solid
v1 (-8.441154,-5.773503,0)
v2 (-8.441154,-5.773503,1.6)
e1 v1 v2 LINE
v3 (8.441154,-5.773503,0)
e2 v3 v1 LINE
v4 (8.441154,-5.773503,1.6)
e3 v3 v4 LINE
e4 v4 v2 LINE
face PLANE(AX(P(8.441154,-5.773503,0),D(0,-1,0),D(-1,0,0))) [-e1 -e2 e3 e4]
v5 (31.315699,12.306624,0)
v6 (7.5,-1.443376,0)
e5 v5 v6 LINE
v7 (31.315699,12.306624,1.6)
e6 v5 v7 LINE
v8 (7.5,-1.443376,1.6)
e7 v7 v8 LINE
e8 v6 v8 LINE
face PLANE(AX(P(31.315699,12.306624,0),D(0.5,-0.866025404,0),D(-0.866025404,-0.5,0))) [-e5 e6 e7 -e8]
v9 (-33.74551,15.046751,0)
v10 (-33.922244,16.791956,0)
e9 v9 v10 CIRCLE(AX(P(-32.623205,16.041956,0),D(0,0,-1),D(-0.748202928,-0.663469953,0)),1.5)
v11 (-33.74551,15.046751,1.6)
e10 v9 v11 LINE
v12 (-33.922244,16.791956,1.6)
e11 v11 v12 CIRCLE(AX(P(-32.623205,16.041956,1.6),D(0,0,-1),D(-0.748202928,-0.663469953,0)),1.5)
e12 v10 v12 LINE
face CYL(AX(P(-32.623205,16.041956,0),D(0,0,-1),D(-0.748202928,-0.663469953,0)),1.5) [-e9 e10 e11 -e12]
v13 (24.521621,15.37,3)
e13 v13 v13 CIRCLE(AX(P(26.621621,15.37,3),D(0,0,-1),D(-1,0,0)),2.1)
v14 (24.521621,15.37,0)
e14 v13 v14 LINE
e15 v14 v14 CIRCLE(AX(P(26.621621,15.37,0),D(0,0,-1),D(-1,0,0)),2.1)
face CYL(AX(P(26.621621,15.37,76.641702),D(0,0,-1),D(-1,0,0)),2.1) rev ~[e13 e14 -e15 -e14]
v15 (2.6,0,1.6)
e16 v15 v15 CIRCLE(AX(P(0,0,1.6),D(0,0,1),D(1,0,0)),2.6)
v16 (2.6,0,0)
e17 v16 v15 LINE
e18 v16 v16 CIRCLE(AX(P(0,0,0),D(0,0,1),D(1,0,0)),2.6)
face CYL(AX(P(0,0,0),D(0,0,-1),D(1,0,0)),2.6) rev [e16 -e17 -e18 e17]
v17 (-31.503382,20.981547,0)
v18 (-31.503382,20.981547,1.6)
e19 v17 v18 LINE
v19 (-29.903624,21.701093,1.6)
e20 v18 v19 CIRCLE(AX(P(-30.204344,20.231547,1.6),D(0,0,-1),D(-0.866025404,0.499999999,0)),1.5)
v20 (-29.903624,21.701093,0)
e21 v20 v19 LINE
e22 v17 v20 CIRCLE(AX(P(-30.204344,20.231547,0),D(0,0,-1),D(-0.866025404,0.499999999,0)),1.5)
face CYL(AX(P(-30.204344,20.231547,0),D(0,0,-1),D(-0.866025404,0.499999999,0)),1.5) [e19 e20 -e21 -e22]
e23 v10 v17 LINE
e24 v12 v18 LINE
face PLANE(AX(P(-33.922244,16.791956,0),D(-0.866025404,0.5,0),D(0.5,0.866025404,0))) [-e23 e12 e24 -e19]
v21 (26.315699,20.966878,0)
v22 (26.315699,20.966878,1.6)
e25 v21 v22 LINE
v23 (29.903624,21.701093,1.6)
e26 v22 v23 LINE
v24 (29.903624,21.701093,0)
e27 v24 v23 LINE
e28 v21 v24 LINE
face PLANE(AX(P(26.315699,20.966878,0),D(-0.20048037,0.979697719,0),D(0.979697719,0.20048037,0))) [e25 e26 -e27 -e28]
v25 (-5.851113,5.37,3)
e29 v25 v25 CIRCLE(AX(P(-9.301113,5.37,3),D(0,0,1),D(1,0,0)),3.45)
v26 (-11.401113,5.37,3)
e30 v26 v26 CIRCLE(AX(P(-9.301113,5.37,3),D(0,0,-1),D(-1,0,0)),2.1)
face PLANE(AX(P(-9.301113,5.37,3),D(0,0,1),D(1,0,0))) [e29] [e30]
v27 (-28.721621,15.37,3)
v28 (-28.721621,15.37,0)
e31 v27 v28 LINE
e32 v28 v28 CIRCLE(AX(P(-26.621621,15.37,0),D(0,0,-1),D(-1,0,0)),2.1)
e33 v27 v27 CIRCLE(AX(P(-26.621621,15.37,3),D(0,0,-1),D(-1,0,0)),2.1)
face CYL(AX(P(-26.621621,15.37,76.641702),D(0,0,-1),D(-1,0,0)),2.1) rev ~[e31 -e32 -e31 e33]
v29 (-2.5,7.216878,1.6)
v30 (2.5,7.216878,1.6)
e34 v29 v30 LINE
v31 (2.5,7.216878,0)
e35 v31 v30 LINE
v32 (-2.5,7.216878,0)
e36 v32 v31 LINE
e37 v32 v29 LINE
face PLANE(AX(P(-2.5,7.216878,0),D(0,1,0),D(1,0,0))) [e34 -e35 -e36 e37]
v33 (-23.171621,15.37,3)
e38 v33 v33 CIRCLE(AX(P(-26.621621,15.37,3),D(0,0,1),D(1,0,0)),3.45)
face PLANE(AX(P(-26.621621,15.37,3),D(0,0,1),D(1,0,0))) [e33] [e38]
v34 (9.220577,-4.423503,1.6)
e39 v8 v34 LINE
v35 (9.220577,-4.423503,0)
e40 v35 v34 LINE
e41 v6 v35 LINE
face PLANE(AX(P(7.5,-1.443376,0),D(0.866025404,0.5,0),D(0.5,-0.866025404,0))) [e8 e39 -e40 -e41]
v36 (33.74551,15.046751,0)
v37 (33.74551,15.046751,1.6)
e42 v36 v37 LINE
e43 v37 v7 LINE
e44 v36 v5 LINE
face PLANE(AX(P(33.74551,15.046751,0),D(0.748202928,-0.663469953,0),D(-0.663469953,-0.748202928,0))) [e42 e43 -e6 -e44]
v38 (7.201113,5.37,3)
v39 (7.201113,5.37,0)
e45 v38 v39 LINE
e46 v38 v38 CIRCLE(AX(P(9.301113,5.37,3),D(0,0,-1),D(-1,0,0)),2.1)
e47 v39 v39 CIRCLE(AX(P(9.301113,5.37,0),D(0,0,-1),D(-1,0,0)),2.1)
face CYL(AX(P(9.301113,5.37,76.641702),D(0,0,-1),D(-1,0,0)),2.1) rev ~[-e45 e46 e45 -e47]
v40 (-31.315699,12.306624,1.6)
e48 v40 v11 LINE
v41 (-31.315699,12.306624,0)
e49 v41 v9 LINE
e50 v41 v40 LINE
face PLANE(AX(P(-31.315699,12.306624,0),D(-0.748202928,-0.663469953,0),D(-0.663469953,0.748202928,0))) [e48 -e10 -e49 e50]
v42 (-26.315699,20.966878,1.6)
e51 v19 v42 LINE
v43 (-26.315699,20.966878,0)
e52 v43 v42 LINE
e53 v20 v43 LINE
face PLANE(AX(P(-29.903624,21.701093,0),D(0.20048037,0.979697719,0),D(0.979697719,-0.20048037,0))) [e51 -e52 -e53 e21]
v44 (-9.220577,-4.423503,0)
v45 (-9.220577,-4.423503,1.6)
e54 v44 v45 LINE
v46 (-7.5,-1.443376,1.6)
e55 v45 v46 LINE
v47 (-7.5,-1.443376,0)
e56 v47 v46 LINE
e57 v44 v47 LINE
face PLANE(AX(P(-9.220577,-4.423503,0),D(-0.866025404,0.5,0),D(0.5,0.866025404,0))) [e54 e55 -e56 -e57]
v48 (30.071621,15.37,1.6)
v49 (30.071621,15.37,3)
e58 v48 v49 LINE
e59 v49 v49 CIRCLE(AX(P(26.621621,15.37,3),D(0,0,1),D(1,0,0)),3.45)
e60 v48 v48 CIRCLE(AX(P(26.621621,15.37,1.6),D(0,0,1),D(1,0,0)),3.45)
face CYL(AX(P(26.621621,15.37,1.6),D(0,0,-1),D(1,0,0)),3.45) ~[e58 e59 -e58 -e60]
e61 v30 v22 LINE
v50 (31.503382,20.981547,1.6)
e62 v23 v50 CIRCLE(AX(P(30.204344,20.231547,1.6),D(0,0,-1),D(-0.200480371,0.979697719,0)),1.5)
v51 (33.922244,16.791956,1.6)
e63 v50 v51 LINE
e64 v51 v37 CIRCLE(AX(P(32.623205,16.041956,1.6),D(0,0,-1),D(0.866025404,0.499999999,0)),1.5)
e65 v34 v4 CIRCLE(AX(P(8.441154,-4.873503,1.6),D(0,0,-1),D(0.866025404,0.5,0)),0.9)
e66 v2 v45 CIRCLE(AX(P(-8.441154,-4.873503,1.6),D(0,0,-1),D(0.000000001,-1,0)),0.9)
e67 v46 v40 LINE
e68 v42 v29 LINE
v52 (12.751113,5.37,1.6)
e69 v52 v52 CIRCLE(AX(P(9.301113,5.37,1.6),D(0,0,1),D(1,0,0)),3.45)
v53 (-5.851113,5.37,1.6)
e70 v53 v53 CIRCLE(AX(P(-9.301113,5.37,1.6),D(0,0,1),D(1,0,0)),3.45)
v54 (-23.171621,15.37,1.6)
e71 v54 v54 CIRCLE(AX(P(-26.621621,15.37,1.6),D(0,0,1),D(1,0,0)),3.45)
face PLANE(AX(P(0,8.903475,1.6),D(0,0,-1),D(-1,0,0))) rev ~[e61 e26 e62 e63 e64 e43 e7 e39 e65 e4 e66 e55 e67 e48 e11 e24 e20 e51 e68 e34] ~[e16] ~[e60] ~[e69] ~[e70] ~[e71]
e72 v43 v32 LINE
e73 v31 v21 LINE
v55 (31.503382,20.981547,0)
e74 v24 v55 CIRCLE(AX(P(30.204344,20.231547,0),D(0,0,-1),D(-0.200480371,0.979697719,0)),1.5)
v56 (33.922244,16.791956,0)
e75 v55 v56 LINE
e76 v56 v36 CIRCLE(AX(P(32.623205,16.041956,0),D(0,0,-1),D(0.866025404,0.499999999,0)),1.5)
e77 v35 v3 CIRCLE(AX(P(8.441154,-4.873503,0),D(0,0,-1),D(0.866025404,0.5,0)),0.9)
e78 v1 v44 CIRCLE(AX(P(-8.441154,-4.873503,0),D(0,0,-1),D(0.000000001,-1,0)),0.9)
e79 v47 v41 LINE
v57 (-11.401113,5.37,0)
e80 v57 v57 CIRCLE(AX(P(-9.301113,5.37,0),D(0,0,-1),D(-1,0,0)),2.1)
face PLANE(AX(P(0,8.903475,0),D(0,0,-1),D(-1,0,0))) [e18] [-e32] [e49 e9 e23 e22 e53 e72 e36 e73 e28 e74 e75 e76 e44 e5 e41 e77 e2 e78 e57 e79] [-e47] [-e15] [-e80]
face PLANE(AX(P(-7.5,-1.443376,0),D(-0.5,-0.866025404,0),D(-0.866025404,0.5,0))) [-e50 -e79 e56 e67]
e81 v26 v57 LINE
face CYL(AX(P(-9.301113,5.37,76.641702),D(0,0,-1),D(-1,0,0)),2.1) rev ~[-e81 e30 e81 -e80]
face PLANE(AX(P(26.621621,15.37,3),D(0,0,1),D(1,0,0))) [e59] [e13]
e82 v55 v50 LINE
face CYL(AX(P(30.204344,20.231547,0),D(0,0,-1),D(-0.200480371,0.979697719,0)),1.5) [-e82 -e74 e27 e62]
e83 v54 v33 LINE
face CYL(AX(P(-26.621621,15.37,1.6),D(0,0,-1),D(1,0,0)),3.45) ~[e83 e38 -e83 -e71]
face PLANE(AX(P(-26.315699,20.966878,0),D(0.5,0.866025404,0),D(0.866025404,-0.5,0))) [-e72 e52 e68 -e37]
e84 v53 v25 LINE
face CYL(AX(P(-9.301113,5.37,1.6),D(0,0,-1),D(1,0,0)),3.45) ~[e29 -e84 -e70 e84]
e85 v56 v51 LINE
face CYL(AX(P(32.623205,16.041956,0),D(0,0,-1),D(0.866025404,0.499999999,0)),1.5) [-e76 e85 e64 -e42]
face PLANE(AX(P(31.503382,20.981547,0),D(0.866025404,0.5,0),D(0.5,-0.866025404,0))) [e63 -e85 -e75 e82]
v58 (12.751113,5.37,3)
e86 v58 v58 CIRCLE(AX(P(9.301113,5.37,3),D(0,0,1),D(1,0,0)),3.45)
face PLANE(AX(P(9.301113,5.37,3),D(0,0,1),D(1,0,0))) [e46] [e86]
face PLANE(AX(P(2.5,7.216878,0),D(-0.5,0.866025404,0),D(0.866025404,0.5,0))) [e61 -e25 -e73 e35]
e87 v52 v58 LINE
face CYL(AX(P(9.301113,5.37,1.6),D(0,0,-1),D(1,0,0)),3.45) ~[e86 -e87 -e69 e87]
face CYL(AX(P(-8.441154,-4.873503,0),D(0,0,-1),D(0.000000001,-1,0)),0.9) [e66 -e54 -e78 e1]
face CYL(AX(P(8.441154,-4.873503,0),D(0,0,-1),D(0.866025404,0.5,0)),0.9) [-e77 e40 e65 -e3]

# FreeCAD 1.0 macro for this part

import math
import FreeCAD as App
import Part
import Sketcher
from FreeCAD import Vector
Q = App.Units.Quantity

doc = App.newDocument("Part")
params = doc.addObject("Spreadsheet::Sheet", "Params")
for row, (alias, value) in enumerate([
    ("sketch1_diameter", "5.2 mm"),
    ("sketch1_radius", "1.5 mm"),
    ("sketch1_radius2", "0.9 mm"),
    ("sketch1_width", "5 mm"),
    ("sketch1_length", "27.5 mm"),
    ("pad1_length", "1.6 mm"),
    ("sketch2_diameter", "6.9 mm"),
    ("pad2_length", "1.4 mm"),
    ("sketch3_diameter", "4.2 mm"),
    ("hole_diameter", "4.2 mm"),
], start=1):
    params.set(f"A{row}", alias)
    params.set(f"B{row}", "=" + value)
    params.setAlias(f"B{row}", alias)

body = doc.addObject("PartDesign::Body", "Body")

sketch1 = body.newObject("Sketcher::SketchObject", "Sketch")
sketch1.AttachmentSupport = (doc.getObject("XY_Plane"), [""])
sketch1.MapMode = "FlatFace"
sketch1.addGeometry([
    Part.LineSegment(Vector(2.5, 7.216878, 0), Vector(-2.5, 7.216878, 0)),
    Part.LineSegment(Vector(-2.5, 7.216878, 0), Vector(-26.315699, 20.966878, 0)),
    Part.LineSegment(Vector(-26.315699, 20.966878, 0), Vector(-29.903624, 21.701093, 0)),
    Part.ArcOfCircle(Part.Circle(Vector(-30.204344, 20.231547, 0), Vector(0, 0, 1), 1.5), math.radians(78.434949), math.radians(150)),
    Part.LineSegment(Vector(-31.503382, 20.981547, 0), Vector(-33.922244, 16.791956, 0)),
    Part.ArcOfCircle(Part.Circle(Vector(-32.623205, 16.041956, 0), Vector(0, 0, 1), 1.5), math.radians(150), math.radians(221.565051)),
    Part.LineSegment(Vector(-33.74551, 15.046751, 0), Vector(-31.315699, 12.306624, 0)),
    Part.LineSegment(Vector(-31.315699, 12.306624, 0), Vector(-7.5, -1.443376, 0)),
    Part.LineSegment(Vector(-7.5, -1.443376, 0), Vector(-9.220577, -4.423503, 0)),
    Part.ArcOfCircle(Part.Circle(Vector(-8.441154, -4.873503, 0), Vector(0, 0, 1), 0.9), math.radians(150), math.radians(270)),
    Part.LineSegment(Vector(-8.441154, -5.773503, 0), Vector(8.441154, -5.773503, 0)),
    Part.ArcOfCircle(Part.Circle(Vector(8.441154, -4.873503, 0), Vector(0, 0, 1), 0.9), math.radians(-90), math.radians(30)),
    Part.LineSegment(Vector(9.220577, -4.423503, 0), Vector(7.5, -1.443376, 0)),
    Part.LineSegment(Vector(7.5, -1.443376, 0), Vector(31.315699, 12.306624, 0)),
    Part.LineSegment(Vector(31.315699, 12.306624, 0), Vector(33.74551, 15.046751, 0)),
    Part.ArcOfCircle(Part.Circle(Vector(32.623205, 16.041956, 0), Vector(0, 0, 1), 1.5), math.radians(-41.565051), math.radians(30)),
    Part.LineSegment(Vector(33.922244, 16.791956, 0), Vector(31.503382, 20.981547, 0)),
    Part.ArcOfCircle(Part.Circle(Vector(30.204344, 20.231547, 0), Vector(0, 0, 1), 1.5), math.radians(30), math.radians(101.565051)),
    Part.LineSegment(Vector(29.903624, 21.701093, 0), Vector(26.315699, 20.966878, 0)),
    Part.LineSegment(Vector(26.315699, 20.966878, 0), Vector(2.5, 7.216878, 0)),
    Part.Circle(Vector(0, 0, 0), Vector(0, 0, 1), 2.6),
], False)
sketch1.addConstraint([
    Sketcher.Constraint("Coincident", 0, 2, 1, 1),
    Sketcher.Constraint("Coincident", 1, 2, 2, 1),
    Sketcher.Constraint("Tangent", 2, 2, 3, 1),
    Sketcher.Constraint("Tangent", 3, 2, 4, 1),
    Sketcher.Constraint("Tangent", 4, 2, 5, 1),
    Sketcher.Constraint("Tangent", 5, 2, 6, 1),
    Sketcher.Constraint("Coincident", 6, 2, 7, 1),
    Sketcher.Constraint("Coincident", 7, 2, 8, 1),
    Sketcher.Constraint("Tangent", 8, 2, 9, 1),
    Sketcher.Constraint("Tangent", 9, 2, 10, 1),
    Sketcher.Constraint("Tangent", 10, 2, 11, 1),
    Sketcher.Constraint("Tangent", 11, 2, 12, 1),
    Sketcher.Constraint("Coincident", 12, 2, 13, 1),
    Sketcher.Constraint("Coincident", 13, 2, 14, 1),
    Sketcher.Constraint("Tangent", 14, 2, 15, 1),
    Sketcher.Constraint("Tangent", 15, 2, 16, 1),
    Sketcher.Constraint("Tangent", 16, 2, 17, 1),
    Sketcher.Constraint("Tangent", 17, 2, 18, 1),
    Sketcher.Constraint("Coincident", 18, 2, 19, 1),
    Sketcher.Constraint("Coincident", 19, 2, 0, 1),
    Sketcher.Constraint("Horizontal", 0),
    Sketcher.Constraint("Horizontal", 10),
    Sketcher.Constraint("Coincident", 20, 3, -1, 1),
    Sketcher.Constraint("Equal", 3, 5),
    Sketcher.Constraint("Equal", 9, 11),
    Sketcher.Constraint("Equal", 5, 15),
    Sketcher.Constraint("Equal", 15, 17),
    Sketcher.Constraint("Symmetric", 5, 3, 15, 3, -2),
    Sketcher.Constraint("Symmetric", 3, 3, 17, 3, -2),
    Sketcher.Constraint("Symmetric", 8, 2, 11, 2, -2),
    Sketcher.Constraint("Symmetric", 6, 2, 13, 2, -2),
    Sketcher.Constraint("Symmetric", 1, 2, 18, 2, -2),
    Sketcher.Constraint("Perpendicular", 1, 4),
    Sketcher.Constraint("Perpendicular", 4, 7),
    Sketcher.Constraint("Perpendicular", 7, 8),
    Sketcher.Constraint("Perpendicular", 12, 13),
    Sketcher.Constraint("Perpendicular", 16, 19),
    Sketcher.Constraint("Equal", 2, 6),
    Sketcher.Constraint("Equal", 1, 7),
    Sketcher.Constraint("Diameter", 20, Q("5.2 mm")),
    Sketcher.Constraint("Radius", 3, Q("1.5 mm")),
    Sketcher.Constraint("Radius", 9, Q("0.9 mm")),
    Sketcher.Constraint("DistanceX", 0, 2, 0, 1, Q("5 mm")),
    Sketcher.Constraint("Angle", 1, Q("150 deg")),
    Sketcher.Constraint("DistanceX", 7, 2, 0, 2, Q("5 mm")),
    Sketcher.Constraint("Distance", 1, Q("27.5 mm")),
    Sketcher.Constraint("DistanceX", 10, 1, 10, 2, Q("16.882309 mm")),
    Sketcher.Constraint("DistanceX", 3, 3, 11, 3, Q("38.645499 mm")),
    Sketcher.Constraint("DistanceX", 4, 2, 3, 3, Q("3.717899 mm")),
    Sketcher.Constraint("DistanceY", -1, 1, 0, 2, Q("7.216878 mm")),
    Sketcher.Constraint("DistanceX", 5, 2, -1, 1, Q("33.74551 mm")),
])
sketch1.setExpression("Constraints[39]", "Params.sketch1_diameter")
sketch1.setExpression("Constraints[40]", "Params.sketch1_radius")
sketch1.setExpression("Constraints[41]", "Params.sketch1_radius2")
sketch1.setExpression("Constraints[42]", "Params.sketch1_width")
sketch1.setExpression("Constraints[45]", "Params.sketch1_length")
pad1 = body.newObject("PartDesign::Pad", "Pad")
pad1.Profile = sketch1
pad1.setExpression("Length", "Params.pad1_length")

sketch2 = body.newObject("Sketcher::SketchObject", "Sketch001")
sketch2.AttachmentSupport = (doc.getObject("XY_Plane"), [""])
sketch2.MapMode = "FlatFace"
sketch2.AttachmentOffset = App.Placement(Vector(0, 0, 1.6), App.Rotation())
sketch2.addGeometry([
    Part.Circle(Vector(26.621621, 15.37, 0), Vector(0, 0, 1), 3.45),
    Part.Circle(Vector(9.301113, 5.37, 0), Vector(0, 0, 1), 3.45),
    Part.Circle(Vector(-9.301113, 5.37, 0), Vector(0, 0, 1), 3.45),
    Part.Circle(Vector(-26.621621, 15.37, 0), Vector(0, 0, 1), 3.45),
], False)
sketch2.addConstraint([
    Sketcher.Constraint("Equal", 0, 1),
    Sketcher.Constraint("Equal", 1, 2),
    Sketcher.Constraint("Equal", 2, 3),
    Sketcher.Constraint("Symmetric", 1, 3, 2, 3, -2),
    Sketcher.Constraint("Symmetric", 0, 3, 3, 3, -2),
    Sketcher.Constraint("Diameter", 0, Q("6.9 mm")),
    Sketcher.Constraint("DistanceY", 1, 3, 0, 3, Q("10 mm")),
    Sketcher.Constraint("DistanceY", -1, 1, 0, 3, Q("15.37 mm")),
    Sketcher.Constraint("DistanceX", -1, 1, 0, 3, Q("26.621621 mm")),
    Sketcher.Constraint("DistanceX", 1, 3, 0, 3, Q("17.320508 mm")),
])
sketch2.setExpression("Constraints[5]", "Params.sketch2_diameter")
pad2 = body.newObject("PartDesign::Pad", "Pad001")
pad2.Profile = sketch2
pad2.setExpression("Length", "Params.pad2_length")

sketch3 = body.newObject("Sketcher::SketchObject", "Sketch002")
sketch3.AttachmentSupport = (doc.getObject("XY_Plane"), [""])
sketch3.MapMode = "FlatFace"
sketch3.AttachmentOffset = App.Placement(Vector(0, 0, 3), App.Rotation())
sketch3.addGeometry([
    Part.Circle(Vector(26.621621, 15.37, 0), Vector(0, 0, 1), 2.1),
    Part.Circle(Vector(9.301113, 5.37, 0), Vector(0, 0, 1), 2.1),
    Part.Circle(Vector(-9.301113, 5.37, 0), Vector(0, 0, 1), 2.1),
    Part.Circle(Vector(-26.621621, 15.37, 0), Vector(0, 0, 1), 2.1),
], False)
sketch3.addConstraint([
    Sketcher.Constraint("Equal", 0, 1),
    Sketcher.Constraint("Equal", 1, 2),
    Sketcher.Constraint("Equal", 2, 3),
    Sketcher.Constraint("Symmetric", 1, 3, 2, 3, -2),
    Sketcher.Constraint("Symmetric", 0, 3, 3, 3, -2),
    Sketcher.Constraint("Diameter", 0, Q("4.2 mm")),
    Sketcher.Constraint("DistanceY", 1, 3, 0, 3, Q("10 mm")),
    Sketcher.Constraint("DistanceY", -1, 1, 0, 3, Q("15.37 mm")),
    Sketcher.Constraint("DistanceX", -1, 1, 0, 3, Q("26.621621 mm")),
    Sketcher.Constraint("DistanceX", 1, 3, 0, 3, Q("17.320508 mm")),
])
sketch3.setExpression("Constraints[5]", "Params.sketch3_diameter")
doc.recompute()
hole = body.newObject("PartDesign::Hole", "Hole")
hole.Profile = sketch3
hole.ThreadType = "None"
hole.setExpression("Diameter", "Params.hole_diameter")
hole.DepthType = "ThroughAll"

doc.recompute()
